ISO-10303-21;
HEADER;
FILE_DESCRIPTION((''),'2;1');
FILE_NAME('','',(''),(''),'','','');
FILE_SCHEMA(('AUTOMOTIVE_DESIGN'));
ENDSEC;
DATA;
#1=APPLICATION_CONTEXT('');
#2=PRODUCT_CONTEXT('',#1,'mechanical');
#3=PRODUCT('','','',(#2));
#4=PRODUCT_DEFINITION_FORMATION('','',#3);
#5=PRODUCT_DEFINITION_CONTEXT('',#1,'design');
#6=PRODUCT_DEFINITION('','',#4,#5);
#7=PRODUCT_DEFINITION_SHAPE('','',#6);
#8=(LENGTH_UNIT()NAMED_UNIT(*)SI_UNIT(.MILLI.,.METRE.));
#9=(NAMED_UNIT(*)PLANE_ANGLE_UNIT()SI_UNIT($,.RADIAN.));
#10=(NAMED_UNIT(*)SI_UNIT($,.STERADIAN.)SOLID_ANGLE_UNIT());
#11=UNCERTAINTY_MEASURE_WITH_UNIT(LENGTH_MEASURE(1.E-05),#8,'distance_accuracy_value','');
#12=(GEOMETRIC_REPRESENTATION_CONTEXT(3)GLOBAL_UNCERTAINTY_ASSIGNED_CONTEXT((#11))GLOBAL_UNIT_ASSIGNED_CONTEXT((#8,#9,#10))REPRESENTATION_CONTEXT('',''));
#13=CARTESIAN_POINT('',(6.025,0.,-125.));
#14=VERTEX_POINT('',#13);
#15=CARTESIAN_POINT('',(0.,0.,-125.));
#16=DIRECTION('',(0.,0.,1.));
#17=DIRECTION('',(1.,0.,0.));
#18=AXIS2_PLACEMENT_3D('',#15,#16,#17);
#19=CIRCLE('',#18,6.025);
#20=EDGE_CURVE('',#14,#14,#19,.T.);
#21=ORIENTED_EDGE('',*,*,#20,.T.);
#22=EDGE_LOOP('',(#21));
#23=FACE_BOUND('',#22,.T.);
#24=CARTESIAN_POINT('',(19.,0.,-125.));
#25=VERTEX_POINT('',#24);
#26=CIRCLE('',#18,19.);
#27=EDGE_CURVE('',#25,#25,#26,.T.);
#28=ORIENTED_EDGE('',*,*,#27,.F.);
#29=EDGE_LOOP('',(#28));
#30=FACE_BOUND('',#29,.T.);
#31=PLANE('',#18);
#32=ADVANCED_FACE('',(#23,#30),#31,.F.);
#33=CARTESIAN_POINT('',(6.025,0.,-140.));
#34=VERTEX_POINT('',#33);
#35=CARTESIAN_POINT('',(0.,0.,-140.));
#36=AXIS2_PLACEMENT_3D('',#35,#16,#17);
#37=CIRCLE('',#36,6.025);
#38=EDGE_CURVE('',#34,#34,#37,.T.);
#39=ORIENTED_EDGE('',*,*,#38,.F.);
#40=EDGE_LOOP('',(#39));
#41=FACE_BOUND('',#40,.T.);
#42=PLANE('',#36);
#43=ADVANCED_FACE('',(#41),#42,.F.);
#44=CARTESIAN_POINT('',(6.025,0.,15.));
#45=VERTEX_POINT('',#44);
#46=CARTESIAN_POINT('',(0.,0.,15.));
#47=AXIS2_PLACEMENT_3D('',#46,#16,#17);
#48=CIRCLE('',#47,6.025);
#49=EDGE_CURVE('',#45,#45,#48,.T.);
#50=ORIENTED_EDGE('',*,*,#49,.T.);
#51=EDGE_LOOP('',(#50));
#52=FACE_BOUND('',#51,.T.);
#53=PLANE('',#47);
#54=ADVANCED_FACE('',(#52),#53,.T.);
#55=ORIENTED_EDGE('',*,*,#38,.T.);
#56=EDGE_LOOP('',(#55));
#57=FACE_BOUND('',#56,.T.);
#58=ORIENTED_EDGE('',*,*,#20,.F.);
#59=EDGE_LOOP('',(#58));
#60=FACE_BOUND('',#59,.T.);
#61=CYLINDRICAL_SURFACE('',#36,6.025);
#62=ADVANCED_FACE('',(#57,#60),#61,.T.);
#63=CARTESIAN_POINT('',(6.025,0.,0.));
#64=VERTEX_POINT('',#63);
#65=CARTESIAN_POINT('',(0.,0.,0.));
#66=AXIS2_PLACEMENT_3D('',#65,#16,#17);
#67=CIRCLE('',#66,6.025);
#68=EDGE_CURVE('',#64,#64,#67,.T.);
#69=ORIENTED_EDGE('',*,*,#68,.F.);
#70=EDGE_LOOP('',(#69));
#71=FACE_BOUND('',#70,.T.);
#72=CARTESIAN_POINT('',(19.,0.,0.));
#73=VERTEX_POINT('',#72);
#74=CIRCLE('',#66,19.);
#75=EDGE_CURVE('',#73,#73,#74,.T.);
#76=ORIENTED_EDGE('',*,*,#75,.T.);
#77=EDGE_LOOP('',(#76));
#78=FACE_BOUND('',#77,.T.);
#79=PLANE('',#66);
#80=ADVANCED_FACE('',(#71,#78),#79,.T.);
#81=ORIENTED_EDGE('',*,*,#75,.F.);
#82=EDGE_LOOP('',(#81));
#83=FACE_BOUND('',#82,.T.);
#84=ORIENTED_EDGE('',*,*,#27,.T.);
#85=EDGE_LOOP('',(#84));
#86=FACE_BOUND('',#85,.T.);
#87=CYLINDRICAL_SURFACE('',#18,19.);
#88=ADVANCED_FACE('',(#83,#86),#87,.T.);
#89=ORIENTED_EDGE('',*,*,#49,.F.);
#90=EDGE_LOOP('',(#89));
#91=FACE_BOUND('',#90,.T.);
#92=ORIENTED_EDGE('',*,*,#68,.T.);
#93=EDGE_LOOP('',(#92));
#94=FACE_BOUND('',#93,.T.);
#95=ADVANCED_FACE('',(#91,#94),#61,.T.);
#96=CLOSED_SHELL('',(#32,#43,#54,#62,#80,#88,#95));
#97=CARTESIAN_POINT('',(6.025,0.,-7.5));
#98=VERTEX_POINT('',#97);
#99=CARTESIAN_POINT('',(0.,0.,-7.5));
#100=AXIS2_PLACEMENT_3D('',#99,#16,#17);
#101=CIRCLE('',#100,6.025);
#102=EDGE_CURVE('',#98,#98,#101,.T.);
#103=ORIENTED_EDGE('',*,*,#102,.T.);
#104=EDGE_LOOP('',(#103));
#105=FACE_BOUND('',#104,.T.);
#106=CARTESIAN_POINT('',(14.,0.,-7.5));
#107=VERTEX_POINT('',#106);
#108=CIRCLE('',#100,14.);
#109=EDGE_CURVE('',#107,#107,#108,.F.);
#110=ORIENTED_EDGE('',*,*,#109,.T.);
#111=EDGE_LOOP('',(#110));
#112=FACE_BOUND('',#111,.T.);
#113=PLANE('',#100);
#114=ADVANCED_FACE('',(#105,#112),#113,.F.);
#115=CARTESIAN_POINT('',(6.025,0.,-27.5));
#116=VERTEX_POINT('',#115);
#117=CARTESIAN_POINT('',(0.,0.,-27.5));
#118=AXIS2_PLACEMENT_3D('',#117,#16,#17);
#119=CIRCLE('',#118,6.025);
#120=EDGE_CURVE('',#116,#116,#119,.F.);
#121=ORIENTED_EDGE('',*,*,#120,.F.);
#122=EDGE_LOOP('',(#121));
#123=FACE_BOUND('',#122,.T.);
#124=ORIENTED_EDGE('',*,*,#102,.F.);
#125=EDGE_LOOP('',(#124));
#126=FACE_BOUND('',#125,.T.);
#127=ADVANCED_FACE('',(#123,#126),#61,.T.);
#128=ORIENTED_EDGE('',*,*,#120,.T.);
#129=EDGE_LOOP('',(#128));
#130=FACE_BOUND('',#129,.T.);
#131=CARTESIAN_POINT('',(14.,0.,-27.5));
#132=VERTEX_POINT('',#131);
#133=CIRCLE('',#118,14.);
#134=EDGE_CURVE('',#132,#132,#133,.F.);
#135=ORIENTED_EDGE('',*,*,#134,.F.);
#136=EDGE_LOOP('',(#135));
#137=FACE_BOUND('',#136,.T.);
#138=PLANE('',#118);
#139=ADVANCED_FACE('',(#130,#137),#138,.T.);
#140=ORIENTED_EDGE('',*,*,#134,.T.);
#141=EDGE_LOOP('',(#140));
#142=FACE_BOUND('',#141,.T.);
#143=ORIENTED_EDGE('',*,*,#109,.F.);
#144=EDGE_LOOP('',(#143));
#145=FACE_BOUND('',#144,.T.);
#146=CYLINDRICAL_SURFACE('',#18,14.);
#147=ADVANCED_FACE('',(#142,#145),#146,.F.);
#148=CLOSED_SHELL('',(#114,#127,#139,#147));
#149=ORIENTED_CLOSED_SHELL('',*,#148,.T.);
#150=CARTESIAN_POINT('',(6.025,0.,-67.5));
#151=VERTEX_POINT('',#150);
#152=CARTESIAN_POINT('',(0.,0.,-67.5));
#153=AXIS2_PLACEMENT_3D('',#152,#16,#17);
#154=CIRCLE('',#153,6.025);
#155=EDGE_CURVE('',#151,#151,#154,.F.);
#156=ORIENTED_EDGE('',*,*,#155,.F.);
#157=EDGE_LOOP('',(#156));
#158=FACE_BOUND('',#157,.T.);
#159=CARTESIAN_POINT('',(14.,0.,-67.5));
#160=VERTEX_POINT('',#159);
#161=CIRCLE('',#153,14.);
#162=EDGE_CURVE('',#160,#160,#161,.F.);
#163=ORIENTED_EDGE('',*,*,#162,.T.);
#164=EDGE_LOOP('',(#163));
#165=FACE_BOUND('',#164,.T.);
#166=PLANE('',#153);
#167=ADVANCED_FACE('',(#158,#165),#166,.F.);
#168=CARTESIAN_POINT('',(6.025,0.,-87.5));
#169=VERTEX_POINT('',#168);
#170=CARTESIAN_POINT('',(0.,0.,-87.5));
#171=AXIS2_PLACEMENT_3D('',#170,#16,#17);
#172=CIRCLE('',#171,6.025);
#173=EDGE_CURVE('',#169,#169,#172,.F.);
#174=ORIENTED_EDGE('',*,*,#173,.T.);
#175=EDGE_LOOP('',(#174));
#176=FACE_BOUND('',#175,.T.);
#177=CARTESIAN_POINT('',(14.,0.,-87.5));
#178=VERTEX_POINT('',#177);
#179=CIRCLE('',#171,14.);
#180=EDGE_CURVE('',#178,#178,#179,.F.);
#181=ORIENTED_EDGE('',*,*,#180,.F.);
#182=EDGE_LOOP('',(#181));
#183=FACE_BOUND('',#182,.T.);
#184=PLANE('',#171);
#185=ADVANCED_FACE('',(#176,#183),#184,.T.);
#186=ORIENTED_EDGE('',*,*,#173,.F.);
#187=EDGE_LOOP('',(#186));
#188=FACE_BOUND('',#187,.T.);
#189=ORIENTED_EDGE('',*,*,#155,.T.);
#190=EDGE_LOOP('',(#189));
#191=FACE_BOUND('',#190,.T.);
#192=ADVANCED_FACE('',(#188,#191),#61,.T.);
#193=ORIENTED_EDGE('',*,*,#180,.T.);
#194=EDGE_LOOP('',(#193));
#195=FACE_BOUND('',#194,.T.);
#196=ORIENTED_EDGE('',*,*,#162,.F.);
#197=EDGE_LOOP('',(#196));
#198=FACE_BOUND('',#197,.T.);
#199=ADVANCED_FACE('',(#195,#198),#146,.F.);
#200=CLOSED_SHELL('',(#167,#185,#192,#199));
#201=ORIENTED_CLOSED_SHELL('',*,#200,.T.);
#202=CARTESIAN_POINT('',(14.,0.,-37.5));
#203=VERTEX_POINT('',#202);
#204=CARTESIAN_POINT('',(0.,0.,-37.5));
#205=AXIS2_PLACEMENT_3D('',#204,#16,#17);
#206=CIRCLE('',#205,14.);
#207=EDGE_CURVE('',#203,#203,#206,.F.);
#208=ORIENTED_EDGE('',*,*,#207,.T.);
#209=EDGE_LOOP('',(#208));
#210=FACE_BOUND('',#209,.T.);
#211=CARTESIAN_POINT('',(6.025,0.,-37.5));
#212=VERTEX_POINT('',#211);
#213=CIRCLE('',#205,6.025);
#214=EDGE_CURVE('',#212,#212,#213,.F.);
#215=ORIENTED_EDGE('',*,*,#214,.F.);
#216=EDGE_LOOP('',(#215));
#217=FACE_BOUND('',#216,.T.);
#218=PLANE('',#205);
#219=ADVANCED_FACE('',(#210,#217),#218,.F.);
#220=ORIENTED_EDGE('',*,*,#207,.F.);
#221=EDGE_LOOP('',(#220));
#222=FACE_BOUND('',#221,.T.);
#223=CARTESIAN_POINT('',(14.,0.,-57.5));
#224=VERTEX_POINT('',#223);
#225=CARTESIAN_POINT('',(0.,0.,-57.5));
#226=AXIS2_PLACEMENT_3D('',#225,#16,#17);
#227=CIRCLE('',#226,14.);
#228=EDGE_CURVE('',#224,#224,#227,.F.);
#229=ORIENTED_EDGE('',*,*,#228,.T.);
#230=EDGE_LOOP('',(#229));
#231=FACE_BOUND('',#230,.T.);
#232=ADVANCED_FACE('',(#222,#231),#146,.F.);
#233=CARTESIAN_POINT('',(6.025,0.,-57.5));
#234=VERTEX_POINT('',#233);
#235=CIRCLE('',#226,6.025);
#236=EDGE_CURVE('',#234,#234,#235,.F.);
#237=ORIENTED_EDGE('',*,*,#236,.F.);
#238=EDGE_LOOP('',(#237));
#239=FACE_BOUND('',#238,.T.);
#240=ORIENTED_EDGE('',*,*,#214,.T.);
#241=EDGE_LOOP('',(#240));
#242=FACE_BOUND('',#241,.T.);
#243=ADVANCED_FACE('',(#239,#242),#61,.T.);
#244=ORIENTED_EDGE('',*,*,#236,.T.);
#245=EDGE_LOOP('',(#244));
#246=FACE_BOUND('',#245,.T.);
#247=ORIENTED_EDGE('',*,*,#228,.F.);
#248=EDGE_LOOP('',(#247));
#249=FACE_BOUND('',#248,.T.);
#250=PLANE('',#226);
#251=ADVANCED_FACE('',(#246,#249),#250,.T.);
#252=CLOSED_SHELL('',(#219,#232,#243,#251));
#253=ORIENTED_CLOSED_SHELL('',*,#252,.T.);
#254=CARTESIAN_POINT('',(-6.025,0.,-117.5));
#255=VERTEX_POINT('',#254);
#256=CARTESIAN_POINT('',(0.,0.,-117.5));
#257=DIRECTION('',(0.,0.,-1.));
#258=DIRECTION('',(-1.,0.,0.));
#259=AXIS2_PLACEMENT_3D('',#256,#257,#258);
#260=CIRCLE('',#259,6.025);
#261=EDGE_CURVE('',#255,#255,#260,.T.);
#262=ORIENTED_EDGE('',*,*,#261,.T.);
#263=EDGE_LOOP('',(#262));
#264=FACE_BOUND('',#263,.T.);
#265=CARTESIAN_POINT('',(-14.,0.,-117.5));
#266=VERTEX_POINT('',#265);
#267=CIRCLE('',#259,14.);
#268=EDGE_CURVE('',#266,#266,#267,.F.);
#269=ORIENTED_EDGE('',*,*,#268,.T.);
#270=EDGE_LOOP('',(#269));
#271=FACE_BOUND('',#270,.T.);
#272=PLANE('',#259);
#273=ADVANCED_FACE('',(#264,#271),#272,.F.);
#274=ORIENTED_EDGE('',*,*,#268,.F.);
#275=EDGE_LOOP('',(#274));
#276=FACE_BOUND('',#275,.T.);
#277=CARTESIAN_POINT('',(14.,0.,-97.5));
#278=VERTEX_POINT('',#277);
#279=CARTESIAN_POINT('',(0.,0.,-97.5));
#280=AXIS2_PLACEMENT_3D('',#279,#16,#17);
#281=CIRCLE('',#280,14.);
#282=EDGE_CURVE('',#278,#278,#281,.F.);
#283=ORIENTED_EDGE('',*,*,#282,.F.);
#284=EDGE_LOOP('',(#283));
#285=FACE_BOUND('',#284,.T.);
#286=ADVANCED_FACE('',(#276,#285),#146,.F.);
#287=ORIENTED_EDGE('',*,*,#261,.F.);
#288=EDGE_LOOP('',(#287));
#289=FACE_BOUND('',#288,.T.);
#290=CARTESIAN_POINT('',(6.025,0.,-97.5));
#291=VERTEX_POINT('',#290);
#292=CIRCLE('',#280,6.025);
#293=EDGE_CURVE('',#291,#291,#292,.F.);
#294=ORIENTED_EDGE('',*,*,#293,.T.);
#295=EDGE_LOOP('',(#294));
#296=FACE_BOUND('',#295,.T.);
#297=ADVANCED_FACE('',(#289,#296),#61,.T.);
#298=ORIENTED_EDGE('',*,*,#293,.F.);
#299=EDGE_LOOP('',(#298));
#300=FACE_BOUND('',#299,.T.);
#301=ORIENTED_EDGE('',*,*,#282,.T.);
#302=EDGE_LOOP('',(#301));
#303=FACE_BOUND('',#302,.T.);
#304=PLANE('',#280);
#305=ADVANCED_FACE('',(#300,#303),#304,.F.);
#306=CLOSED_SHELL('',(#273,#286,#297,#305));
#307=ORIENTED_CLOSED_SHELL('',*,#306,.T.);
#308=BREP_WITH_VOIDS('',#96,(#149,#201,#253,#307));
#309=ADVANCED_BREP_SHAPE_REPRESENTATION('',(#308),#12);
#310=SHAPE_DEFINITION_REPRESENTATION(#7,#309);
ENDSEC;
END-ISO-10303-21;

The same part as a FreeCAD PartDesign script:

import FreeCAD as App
import Part
import Sketcher
from FreeCAD import Vector

doc = App.newDocument("Part")
body = doc.addObject("PartDesign::Body", "Body")

sketch1 = body.newObject("Sketcher::SketchObject", "Sketch")
sketch1.AttachmentSupport = (doc.getObject("XY_Plane"), [""])
sketch1.MapMode = "FlatFace"
sketch1.addGeometry([
    Part.Circle(Vector(0, 0, 0), Vector(0, 0, 1), 19),
    Part.Circle(Vector(0, 0, 0), Vector(0, 0, 1), 14),
], False)
sketch1.addConstraint([
    Sketcher.Constraint("Coincident", 0, 3, -1, 1),
    Sketcher.Constraint("Coincident", 1, 3, -1, 1),
    Sketcher.Constraint("Diameter", 0, 38.0),
    Sketcher.Constraint("Diameter", 1, 28.0),
])
pad1 = body.newObject("PartDesign::Pad", "Pad")
pad1.Profile = sketch1
pad1.Length = 125
pad1.Reversed = True

sketch2 = body.newObject("Sketcher::SketchObject", "Sketch001")
sketch2.AttachmentSupport = (doc.getObject("XY_Plane"), [""])
sketch2.MapMode = "FlatFace"
sketch2.addGeometry(Part.Circle(Vector(0, 0, 0), Vector(0, 0, 1), 14), False)
sketch2.addConstraint([
    Sketcher.Constraint("Coincident", 0, 3, -1, 1),
    Sketcher.Constraint("Diameter", 0, 28.0),
])
pad2 = body.newObject("PartDesign::Pad", "Pad001")
pad2.Profile = sketch2
pad2.Length = 7.5
pad2.Reversed = True

sketch3 = body.newObject("Sketcher::SketchObject", "Sketch002")
sketch3.AttachmentSupport = (doc.getObject("XY_Plane"), [""])
sketch3.MapMode = "FlatFace"
sketch3.AttachmentOffset = App.Placement(Vector(0, 0, -7.5), App.Rotation())
sketch3.addGeometry(Part.Circle(Vector(0, 0, 0), Vector(0, 0, 1), 6.025), False)
sketch3.addConstraint([
    Sketcher.Constraint("Coincident", 0, 3, -1, 1),
    Sketcher.Constraint("Diameter", 0, 12.05),
])
pocket1 = body.newObject("PartDesign::Pocket", "Pocket")
pocket1.Profile = sketch3
pocket1.Type = "ThroughAll"
pocket1.Midplane = True

sketch4 = body.newObject("Sketcher::SketchObject", "Sketch003")
sketch4.AttachmentSupport = (doc.getObject("XY_Plane"), [""])
sketch4.MapMode = "FlatFace"
sketch4.AttachmentOffset = App.Placement(Vector(0, 0, -117.5), App.Rotation())
sketch4.addGeometry(Part.Circle(Vector(0, 0, 0), Vector(0, 0, 1), 14), False)
sketch4.addConstraint([
    Sketcher.Constraint("Coincident", 0, 3, -1, 1),
    Sketcher.Constraint("Diameter", 0, 28.0),
])
pad3 = body.newObject("PartDesign::Pad", "Pad002")
pad3.Profile = sketch4
pad3.Length = 7.5
pad3.Reversed = True

sketch5 = body.newObject("Sketcher::SketchObject", "Sketch004")
sketch5.AttachmentSupport = (doc.getObject("XY_Plane"), [""])
sketch5.MapMode = "FlatFace"
sketch5.addGeometry(Part.Circle(Vector(0, 0, 0), Vector(0, 0, 1), 6.025), False)
sketch5.addConstraint([
    Sketcher.Constraint("Coincident", 0, 3, -1, 1),
    Sketcher.Constraint("Diameter", 0, 12.05),
])
pad4 = body.newObject("PartDesign::Pad", "Pad003")
pad4.Profile = sketch5
pad4.Type = "TwoLengths"
pad4.Length = 15
pad4.Length2 = 140

sketch6 = body.newObject("Sketcher::SketchObject", "Sketch005")
sketch6.AttachmentSupport = (doc.getObject("XY_Plane"), [""])
sketch6.MapMode = "FlatFace"
sketch6.AttachmentOffset = App.Placement(Vector(0, 0, -62.5), App.Rotation())
sketch6.addGeometry(Part.Circle(Vector(0, 0, 0), Vector(0, 0, 1), 15), False)
sketch6.addConstraint([
    Sketcher.Constraint("Coincident", 0, 3, -1, 1),
    Sketcher.Constraint("Diameter", 0, 30.0),
])
pad5 = body.newObject("PartDesign::Pad", "Pad004")
pad5.Profile = sketch6
pad5.Length = 10
pad5.Midplane = True
doc.recompute()

linearpattern = body.newObject("PartDesign::LinearPattern", "LinearPattern")
linearpattern.Originals = [pad5]
linearpattern.Direction = (doc.getObject("Z_Axis"), [""])
linearpattern.Mode = "offset"
linearpattern.Offset = 30
linearpattern.Occurrences = 2
linearpattern.Reversed = True
body.Tip = linearpattern

sketch7 = body.newObject("Sketcher::SketchObject", "Sketch006")
sketch7.AttachmentSupport = (doc.getObject("XY_Plane"), [""])
sketch7.MapMode = "FlatFace"
sketch7.AttachmentOffset = App.Placement(Vector(0, 0, -62.5), App.Rotation())
sketch7.addGeometry(Part.Circle(Vector(0, 0, 0), Vector(0, 0, 1), 15), False)
sketch7.addConstraint([
    Sketcher.Constraint("Coincident", 0, 3, -1, 1),
    Sketcher.Constraint("Diameter", 0, 30.0),
])
pad6 = body.newObject("PartDesign::Pad", "Pad005")
pad6.Profile = sketch7
pad6.Length = 10
pad6.Midplane = True

sketch8 = body.newObject("Sketcher::SketchObject", "Sketch007")
sketch8.AttachmentSupport = (doc.getObject("XY_Plane"), [""])
sketch8.MapMode = "FlatFace"
sketch8.AttachmentOffset = App.Placement(Vector(0, 0, -32.5), App.Rotation())
sketch8.addGeometry(Part.Circle(Vector(0, 0, 0), Vector(0, 0, 1), 15), False)
sketch8.addConstraint([
    Sketcher.Constraint("Coincident", 0, 3, -1, 1),
    Sketcher.Constraint("Diameter", 0, 30.0),
])
pad7 = body.newObject("PartDesign::Pad", "Pad006")
pad7.Profile = sketch8
pad7.Length = 10
pad7.Midplane = True

doc.recompute()
